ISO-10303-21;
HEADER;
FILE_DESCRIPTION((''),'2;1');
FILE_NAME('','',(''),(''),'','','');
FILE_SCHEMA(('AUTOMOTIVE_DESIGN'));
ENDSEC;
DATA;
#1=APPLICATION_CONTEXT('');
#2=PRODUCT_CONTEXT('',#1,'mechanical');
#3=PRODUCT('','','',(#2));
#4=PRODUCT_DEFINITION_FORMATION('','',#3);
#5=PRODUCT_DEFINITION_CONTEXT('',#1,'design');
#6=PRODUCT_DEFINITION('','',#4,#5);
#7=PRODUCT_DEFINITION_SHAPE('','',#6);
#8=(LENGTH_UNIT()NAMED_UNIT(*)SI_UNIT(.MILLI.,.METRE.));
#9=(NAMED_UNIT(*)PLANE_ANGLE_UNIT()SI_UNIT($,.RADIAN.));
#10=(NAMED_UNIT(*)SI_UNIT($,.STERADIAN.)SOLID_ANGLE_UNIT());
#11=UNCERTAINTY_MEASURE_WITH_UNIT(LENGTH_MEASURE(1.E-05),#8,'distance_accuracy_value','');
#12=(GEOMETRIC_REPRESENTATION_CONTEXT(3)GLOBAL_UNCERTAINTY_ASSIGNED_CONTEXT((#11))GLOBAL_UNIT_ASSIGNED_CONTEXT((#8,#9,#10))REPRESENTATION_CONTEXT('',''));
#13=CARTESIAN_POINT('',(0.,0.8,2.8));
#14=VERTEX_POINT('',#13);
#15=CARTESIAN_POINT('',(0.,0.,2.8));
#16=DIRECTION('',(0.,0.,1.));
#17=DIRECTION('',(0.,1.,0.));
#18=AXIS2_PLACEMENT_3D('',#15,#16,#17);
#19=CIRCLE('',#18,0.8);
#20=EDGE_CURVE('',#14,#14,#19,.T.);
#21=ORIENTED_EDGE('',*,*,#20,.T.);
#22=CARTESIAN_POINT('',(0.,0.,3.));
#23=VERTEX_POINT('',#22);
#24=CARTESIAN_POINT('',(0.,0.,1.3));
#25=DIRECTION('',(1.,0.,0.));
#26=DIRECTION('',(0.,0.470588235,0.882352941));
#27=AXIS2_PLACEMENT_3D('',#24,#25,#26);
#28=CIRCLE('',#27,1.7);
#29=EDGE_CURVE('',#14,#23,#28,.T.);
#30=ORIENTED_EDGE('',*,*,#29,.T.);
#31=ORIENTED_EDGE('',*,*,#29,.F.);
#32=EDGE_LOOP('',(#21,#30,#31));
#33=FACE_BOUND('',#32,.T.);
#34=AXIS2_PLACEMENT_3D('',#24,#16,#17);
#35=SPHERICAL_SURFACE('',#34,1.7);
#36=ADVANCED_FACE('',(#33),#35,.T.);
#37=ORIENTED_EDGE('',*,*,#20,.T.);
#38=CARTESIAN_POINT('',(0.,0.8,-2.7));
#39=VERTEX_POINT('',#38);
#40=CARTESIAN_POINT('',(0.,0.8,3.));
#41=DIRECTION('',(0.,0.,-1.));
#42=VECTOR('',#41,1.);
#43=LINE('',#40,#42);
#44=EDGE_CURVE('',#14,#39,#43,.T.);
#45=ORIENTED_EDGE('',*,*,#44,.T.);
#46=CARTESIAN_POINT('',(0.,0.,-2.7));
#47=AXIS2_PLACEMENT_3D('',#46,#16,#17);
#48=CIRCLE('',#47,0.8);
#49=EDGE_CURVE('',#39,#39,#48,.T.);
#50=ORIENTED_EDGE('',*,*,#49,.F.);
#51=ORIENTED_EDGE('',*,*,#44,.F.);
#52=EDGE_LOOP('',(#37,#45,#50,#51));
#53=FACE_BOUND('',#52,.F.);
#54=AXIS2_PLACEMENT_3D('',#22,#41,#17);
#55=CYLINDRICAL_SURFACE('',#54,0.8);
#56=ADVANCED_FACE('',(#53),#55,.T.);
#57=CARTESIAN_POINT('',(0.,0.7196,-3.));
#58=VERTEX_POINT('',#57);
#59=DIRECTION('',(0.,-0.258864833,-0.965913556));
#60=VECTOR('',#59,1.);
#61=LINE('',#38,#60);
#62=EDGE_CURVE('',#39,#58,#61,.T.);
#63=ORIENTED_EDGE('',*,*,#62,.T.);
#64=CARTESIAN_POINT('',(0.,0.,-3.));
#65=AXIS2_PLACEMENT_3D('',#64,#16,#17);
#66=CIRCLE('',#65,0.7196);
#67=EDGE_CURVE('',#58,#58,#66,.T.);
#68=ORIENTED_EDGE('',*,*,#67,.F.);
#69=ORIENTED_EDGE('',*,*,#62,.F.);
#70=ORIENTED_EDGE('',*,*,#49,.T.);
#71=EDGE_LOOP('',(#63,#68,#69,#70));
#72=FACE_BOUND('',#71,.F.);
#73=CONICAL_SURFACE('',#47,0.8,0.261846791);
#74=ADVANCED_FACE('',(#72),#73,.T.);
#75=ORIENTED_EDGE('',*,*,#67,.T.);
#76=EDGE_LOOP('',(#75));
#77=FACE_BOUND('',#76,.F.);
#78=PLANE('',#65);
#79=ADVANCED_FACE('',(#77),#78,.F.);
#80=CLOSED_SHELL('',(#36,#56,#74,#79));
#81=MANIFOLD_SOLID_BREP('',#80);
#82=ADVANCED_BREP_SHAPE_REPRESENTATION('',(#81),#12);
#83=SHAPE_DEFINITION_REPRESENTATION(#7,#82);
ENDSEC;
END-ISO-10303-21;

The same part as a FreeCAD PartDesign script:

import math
import FreeCAD as App
import Part
import Sketcher
Q = App.Units.Quantity

doc = App.newDocument("Part")
body = doc.addObject("PartDesign::Body", "Body")

sketch1 = doc.addObject("Sketcher::SketchObject", "Sketch")
body.addObject(sketch1)
sketch1.AttachmentSupport = (doc.YZ_Plane, [""])
sketch1.MapMode = "FlatFace"
sketch1.addGeometry([
    Part.ArcOfCircle(Part.Circle(App.Vector(0, 1.3, 0), App.Vector(0, 0, 1), 1.7), math.radians(61.927513), math.radians(90)),
    Part.LineSegment(App.Vector(0, 3, 0), App.Vector(0, -3, 0)),
    Part.LineSegment(App.Vector(0, -3, 0), App.Vector(0.7196, -3, 0)),
    Part.LineSegment(App.Vector(0.7196, -3, 0), App.Vector(0.8, -2.7, 0)),
    Part.LineSegment(App.Vector(0.8, -2.7, 0), App.Vector(0.8, 2.8, 0)),
], False)
sketch1.addConstraint([
    Sketcher.Constraint("Coincident", 0, 2, 1, 1),
    Sketcher.Constraint("Coincident", 1, 2, 2, 1),
    Sketcher.Constraint("Coincident", 2, 2, 3, 1),
    Sketcher.Constraint("Coincident", 3, 2, 4, 1),
    Sketcher.Constraint("Coincident", 4, 2, 0, 1),
    Sketcher.Constraint("Vertical", 1),
    Sketcher.Constraint("Horizontal", 2),
    Sketcher.Constraint("Vertical", 4),
    Sketcher.Constraint("Symmetric", 0, 2, 1, 2, -1, 1),
    Sketcher.Constraint("PointOnObject", 0, 3, -2),
    Sketcher.Constraint("DistanceY", 1, 2, 1, 1, Q("6 mm")),
    Sketcher.Constraint("Radius", 0, Q("1.7 mm")),
    Sketcher.Constraint("DistanceY", 2, 2, 3, 2, Q("0.3 mm")),
    Sketcher.Constraint("DistanceY", 4, 2, 0, 2, Q("0.2 mm")),
    Sketcher.Constraint("DistanceX", 2, 1, 2, 2, Q("0.7196 mm")),
])
revolution = doc.addObject("PartDesign::Revolution", "Revolution")
body.addObject(revolution)
revolution.Profile = sketch1
revolution.ReferenceAxis = (sketch1, ["V_Axis"])
revolution.Angle = 360

doc.recompute()
